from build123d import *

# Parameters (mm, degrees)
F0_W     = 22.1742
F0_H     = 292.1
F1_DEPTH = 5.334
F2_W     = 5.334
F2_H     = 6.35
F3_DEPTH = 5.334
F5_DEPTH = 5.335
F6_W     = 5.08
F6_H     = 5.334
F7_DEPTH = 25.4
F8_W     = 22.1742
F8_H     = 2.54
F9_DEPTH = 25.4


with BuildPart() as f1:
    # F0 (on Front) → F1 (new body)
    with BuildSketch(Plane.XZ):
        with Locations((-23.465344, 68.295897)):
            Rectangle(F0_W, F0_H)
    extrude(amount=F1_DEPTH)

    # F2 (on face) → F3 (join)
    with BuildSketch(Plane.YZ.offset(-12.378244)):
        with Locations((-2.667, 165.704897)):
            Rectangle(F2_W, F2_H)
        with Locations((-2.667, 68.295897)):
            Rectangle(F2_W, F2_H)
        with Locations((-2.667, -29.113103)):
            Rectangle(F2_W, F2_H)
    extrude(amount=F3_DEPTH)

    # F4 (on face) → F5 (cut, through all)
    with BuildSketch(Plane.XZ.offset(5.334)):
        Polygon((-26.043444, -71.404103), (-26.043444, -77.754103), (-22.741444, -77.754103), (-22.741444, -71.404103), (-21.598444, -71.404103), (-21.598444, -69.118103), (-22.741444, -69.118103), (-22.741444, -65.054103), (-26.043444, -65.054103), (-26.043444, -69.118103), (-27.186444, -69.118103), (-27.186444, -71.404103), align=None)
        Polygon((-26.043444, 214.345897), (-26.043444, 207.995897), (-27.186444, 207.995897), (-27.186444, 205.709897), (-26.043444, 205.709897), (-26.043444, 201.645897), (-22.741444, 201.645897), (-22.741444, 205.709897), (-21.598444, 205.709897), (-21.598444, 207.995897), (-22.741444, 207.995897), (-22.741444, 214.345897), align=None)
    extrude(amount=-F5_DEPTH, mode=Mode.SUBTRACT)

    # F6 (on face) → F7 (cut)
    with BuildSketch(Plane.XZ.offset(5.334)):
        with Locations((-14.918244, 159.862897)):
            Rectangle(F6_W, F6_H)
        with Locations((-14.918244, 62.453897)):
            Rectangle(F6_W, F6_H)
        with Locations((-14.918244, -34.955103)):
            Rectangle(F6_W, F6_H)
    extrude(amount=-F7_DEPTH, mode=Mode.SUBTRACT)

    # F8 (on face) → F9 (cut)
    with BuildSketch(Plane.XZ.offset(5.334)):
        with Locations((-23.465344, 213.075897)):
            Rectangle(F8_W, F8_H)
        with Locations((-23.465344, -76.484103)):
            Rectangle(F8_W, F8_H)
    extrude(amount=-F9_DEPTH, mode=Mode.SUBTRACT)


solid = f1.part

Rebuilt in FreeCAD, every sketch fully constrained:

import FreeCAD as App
import Part
import Sketcher
from FreeCAD import Vector
Q = App.Units.Quantity

doc = App.newDocument("Part")
body = doc.addObject("PartDesign::Body", "Body")

sketch1 = body.newObject("Sketcher::SketchObject", "Sketch")
sketch1.AttachmentSupport = (doc.getObject("XZ_Plane"), [""])
sketch1.MapMode = "FlatFace"
sketch1.addGeometry([
    Part.LineSegment(Vector(-34.552444, 214.345897, 0), Vector(-34.552444, -77.754103, 0)),
    Part.LineSegment(Vector(-34.552444, -77.754103, 0), Vector(-12.378244, -77.754103, 0)),
    Part.LineSegment(Vector(-12.378244, -77.754103, 0), Vector(-12.378244, 214.345897, 0)),
    Part.LineSegment(Vector(-12.378244, 214.345897, 0), Vector(-34.552444, 214.345897, 0)),
], False)
sketch1.addConstraint([
    Sketcher.Constraint("Coincident", 0, 2, 1, 1),
    Sketcher.Constraint("Coincident", 1, 2, 2, 1),
    Sketcher.Constraint("Coincident", 2, 2, 3, 1),
    Sketcher.Constraint("Coincident", 3, 2, 0, 1),
    Sketcher.Constraint("Vertical", 0),
    Sketcher.Constraint("Horizontal", 1),
    Sketcher.Constraint("Vertical", 2),
    Sketcher.Constraint("Horizontal", 3),
    Sketcher.Constraint("DistanceY", 0, 2, 0, 1, Q("11.5 in")),
    Sketcher.Constraint("DistanceX", 1, 1, 1, 2, Q("0.873 in")),
    Sketcher.Constraint("DistanceX", 0, 2, -1, 1, Q("34.552444 mm")),
    Sketcher.Constraint("DistanceY", 0, 2, -1, 1, Q("77.754103 mm")),
])
pad1 = body.newObject("PartDesign::Pad", "Pad")
pad1.Profile = sketch1
pad1.Length = Q("0.21 in")

sketch2 = body.newObject("Sketcher::SketchObject", "Sketch001")
sketch2.AttachmentSupport = (doc.getObject("YZ_Plane"), [""])
sketch2.MapMode = "FlatFace"
sketch2.AttachmentOffset = App.Placement(Vector(0, 0, -12.378244), App.Rotation())
sketch2.addGeometry([
    Part.LineSegment(Vector(-5.334, 168.879897, 0), Vector(-5.334, 162.529897, 0)),
    Part.LineSegment(Vector(-5.334, 162.529897, 0), Vector(0, 162.529897, 0)),
    Part.LineSegment(Vector(0, 162.529897, 0), Vector(0, 168.879897, 0)),
    Part.LineSegment(Vector(0, 168.879897, 0), Vector(-5.334, 168.879897, 0)),
    Part.LineSegment(Vector(-5.334, 71.470897, 0), Vector(-5.334, 65.120897, 0)),
    Part.LineSegment(Vector(-5.334, 65.120897, 0), Vector(0, 65.120897, 0)),
    Part.LineSegment(Vector(0, 65.120897, 0), Vector(0, 71.470897, 0)),
    Part.LineSegment(Vector(0, 71.470897, 0), Vector(-5.334, 71.470897, 0)),
    Part.LineSegment(Vector(-5.334, -25.938103, 0), Vector(-5.334, -32.288103, 0)),
    Part.LineSegment(Vector(-5.334, -32.288103, 0), Vector(0, -32.288103, 0)),
    Part.LineSegment(Vector(0, -32.288103, 0), Vector(0, -25.938103, 0)),
    Part.LineSegment(Vector(0, -25.938103, 0), Vector(-5.334, -25.938103, 0)),
], False)
sketch2.addConstraint([
    Sketcher.Constraint("Coincident", 0, 2, 1, 1),
    Sketcher.Constraint("Coincident", 1, 2, 2, 1),
    Sketcher.Constraint("Coincident", 2, 2, 3, 1),
    Sketcher.Constraint("Coincident", 3, 2, 0, 1),
    Sketcher.Constraint("Coincident", 4, 2, 5, 1),
    Sketcher.Constraint("Coincident", 5, 2, 6, 1),
    Sketcher.Constraint("Coincident", 6, 2, 7, 1),
    Sketcher.Constraint("Coincident", 7, 2, 4, 1),
    Sketcher.Constraint("Coincident", 8, 2, 9, 1),
    Sketcher.Constraint("Coincident", 9, 2, 10, 1),
    Sketcher.Constraint("Coincident", 10, 2, 11, 1),
    Sketcher.Constraint("Coincident", 11, 2, 8, 1),
    Sketcher.Constraint("Vertical", 0),
    Sketcher.Constraint("Horizontal", 1),
    Sketcher.Constraint("Vertical", 2),
    Sketcher.Constraint("Horizontal", 3),
    Sketcher.Constraint("Vertical", 4),
    Sketcher.Constraint("Horizontal", 5),
    Sketcher.Constraint("Vertical", 6),
    Sketcher.Constraint("Horizontal", 7),
    Sketcher.Constraint("Vertical", 8),
    Sketcher.Constraint("Horizontal", 9),
    Sketcher.Constraint("Vertical", 10),
    Sketcher.Constraint("Horizontal", 11),
    Sketcher.Constraint("PointOnObject", 1, 2, -2),
    Sketcher.Constraint("PointOnObject", 5, 2, -2),
    Sketcher.Constraint("PointOnObject", 9, 2, -2),
    Sketcher.Constraint("Vertical", 3, 2, 4, 2),
    Sketcher.Constraint("Vertical", 7, 2, 8, 2),
    Sketcher.Constraint("Equal", 2, 4),
    Sketcher.Constraint("Equal", 6, 8),
    Sketcher.Constraint("DistanceX", 1, 1, 1, 2, Q("0.21 in")),
    Sketcher.Constraint("DistanceY", 0, 2, 0, 1, Q("0.25 in")),
    Sketcher.Constraint("DistanceY", 8, 2, 0, 2, Q("7.67 in")),
    Sketcher.Constraint("DistanceY", 4, 2, 0, 2, Q("3.835 in")),
    Sketcher.Constraint("DistanceY", -1, 1, 0, 2, Q("162.529897 mm")),
])
pad2 = body.newObject("PartDesign::Pad", "Pad001")
pad2.Profile = sketch2
pad2.Length = Q("0.21 in")

sketch3 = body.newObject("Sketcher::SketchObject", "Sketch002")
sketch3.AttachmentSupport = (doc.getObject("XZ_Plane"), [""])
sketch3.MapMode = "FlatFace"
sketch3.AttachmentOffset = App.Placement(Vector(0, 0, 0.21 * 25.4), App.Rotation())
sketch3.addGeometry([
    Part.LineSegment(Vector(-26.043444, -71.404103, 0), Vector(-26.043444, -77.754103, 0)),
    Part.LineSegment(Vector(-26.043444, -77.754103, 0), Vector(-22.741444, -77.754103, 0)),
    Part.LineSegment(Vector(-22.741444, -77.754103, 0), Vector(-22.741444, -71.404103, 0)),
    Part.LineSegment(Vector(-22.741444, -71.404103, 0), Vector(-21.598444, -71.404103, 0)),
    Part.LineSegment(Vector(-21.598444, -71.404103, 0), Vector(-21.598444, -69.118103, 0)),
    Part.LineSegment(Vector(-21.598444, -69.118103, 0), Vector(-22.741444, -69.118103, 0)),
    Part.LineSegment(Vector(-22.741444, -69.118103, 0), Vector(-22.741444, -65.054103, 0)),
    Part.LineSegment(Vector(-22.741444, -65.054103, 0), Vector(-26.043444, -65.054103, 0)),
    Part.LineSegment(Vector(-26.043444, -65.054103, 0), Vector(-26.043444, -69.118103, 0)),
    Part.LineSegment(Vector(-26.043444, -69.118103, 0), Vector(-27.186444, -69.118103, 0)),
    Part.LineSegment(Vector(-27.186444, -69.118103, 0), Vector(-27.186444, -71.404103, 0)),
    Part.LineSegment(Vector(-27.186444, -71.404103, 0), Vector(-26.043444, -71.404103, 0)),
    Part.LineSegment(Vector(-26.043444, 214.345897, 0), Vector(-26.043444, 207.995897, 0)),
    Part.LineSegment(Vector(-26.043444, 207.995897, 0), Vector(-27.186444, 207.995897, 0)),
    Part.LineSegment(Vector(-27.186444, 207.995897, 0), Vector(-27.186444, 205.709897, 0)),
    Part.LineSegment(Vector(-27.186444, 205.709897, 0), Vector(-26.043444, 205.709897, 0)),
    Part.LineSegment(Vector(-26.043444, 205.709897, 0), Vector(-26.043444, 201.645897, 0)),
    Part.LineSegment(Vector(-26.043444, 201.645897, 0), Vector(-22.741444, 201.645897, 0)),
    Part.LineSegment(Vector(-22.741444, 201.645897, 0), Vector(-22.741444, 205.709897, 0)),
    Part.LineSegment(Vector(-22.741444, 205.709897, 0), Vector(-21.598444, 205.709897, 0)),
    Part.LineSegment(Vector(-21.598444, 205.709897, 0), Vector(-21.598444, 207.995897, 0)),
    Part.LineSegment(Vector(-21.598444, 207.995897, 0), Vector(-22.741444, 207.995897, 0)),
    Part.LineSegment(Vector(-22.741444, 207.995897, 0), Vector(-22.741444, 214.345897, 0)),
    Part.LineSegment(Vector(-22.741444, 214.345897, 0), Vector(-26.043444, 214.345897, 0)),
], False)
sketch3.addConstraint([
    Sketcher.Constraint("Coincident", 0, 2, 1, 1),
    Sketcher.Constraint("Coincident", 1, 2, 2, 1),
    Sketcher.Constraint("Coincident", 2, 2, 3, 1),
    Sketcher.Constraint("Coincident", 3, 2, 4, 1),
    Sketcher.Constraint("Coincident", 4, 2, 5, 1),
    Sketcher.Constraint("Coincident", 5, 2, 6, 1),
    Sketcher.Constraint("Coincident", 6, 2, 7, 1),
    Sketcher.Constraint("Coincident", 7, 2, 8, 1),
    Sketcher.Constraint("Coincident", 8, 2, 9, 1),
    Sketcher.Constraint("Coincident", 9, 2, 10, 1),
    Sketcher.Constraint("Coincident", 10, 2, 11, 1),
    Sketcher.Constraint("Coincident", 11, 2, 0, 1),
    Sketcher.Constraint("Coincident", 12, 2, 13, 1),
    Sketcher.Constraint("Coincident", 13, 2, 14, 1),
    Sketcher.Constraint("Coincident", 14, 2, 15, 1),
    Sketcher.Constraint("Coincident", 15, 2, 16, 1),
    Sketcher.Constraint("Coincident", 16, 2, 17, 1),
    Sketcher.Constraint("Coincident", 17, 2, 18, 1),
    Sketcher.Constraint("Coincident", 18, 2, 19, 1),
    Sketcher.Constraint("Coincident", 19, 2, 20, 1),
    Sketcher.Constraint("Coincident", 20, 2, 21, 1),
    Sketcher.Constraint("Coincident", 21, 2, 22, 1),
    Sketcher.Constraint("Coincident", 22, 2, 23, 1),
    Sketcher.Constraint("Coincident", 23, 2, 12, 1),
    Sketcher.Constraint("Vertical", 0),
    Sketcher.Constraint("Horizontal", 1),
    Sketcher.Constraint("Vertical", 2),
    Sketcher.Constraint("Horizontal", 3),
    Sketcher.Constraint("Vertical", 4),
    Sketcher.Constraint("Horizontal", 5),
    Sketcher.Constraint("Vertical", 6),
    Sketcher.Constraint("Horizontal", 7),
    Sketcher.Constraint("Vertical", 8),
    Sketcher.Constraint("Horizontal", 9),
    Sketcher.Constraint("Vertical", 10),
    Sketcher.Constraint("Horizontal", 11),
    Sketcher.Constraint("Vertical", 12),
    Sketcher.Constraint("Horizontal", 13),
    Sketcher.Constraint("Vertical", 14),
    Sketcher.Constraint("Horizontal", 15),
    Sketcher.Constraint("Vertical", 16),
    Sketcher.Constraint("Horizontal", 17),
    Sketcher.Constraint("Vertical", 18),
    Sketcher.Constraint("Horizontal", 19),
    Sketcher.Constraint("Vertical", 20),
    Sketcher.Constraint("Horizontal", 21),
    Sketcher.Constraint("Vertical", 22),
    Sketcher.Constraint("Horizontal", 23),
    Sketcher.Constraint("Horizontal", 5, 2, 8, 2),
    Sketcher.Constraint("Horizontal", 3, 2, 10, 2),
    Sketcher.Constraint("Horizontal", 15, 2, 18, 2),
    Sketcher.Constraint("Horizontal", 13, 2, 20, 2),
    Sketcher.Constraint("Vertical", 2, 2, 5, 2),
    Sketcher.Constraint("Vertical", 0, 2, 7, 2),
    Sketcher.Constraint("Vertical", 11, 2, 12, 2),
    Sketcher.Constraint("Vertical", 10, 2, 13, 2),
    Sketcher.Constraint("Vertical", 12, 2, 15, 2),
    Sketcher.Constraint("Vertical", 6, 2, 17, 2),
    Sketcher.Constraint("Vertical", 4, 2, 19, 2),
    Sketcher.Constraint("Vertical", 18, 2, 21, 2),
    Sketcher.Constraint("Equal", 5, 9),
    Sketcher.Constraint("Equal", 2, 12),
    Sketcher.Constraint("Equal", 10, 14),
    Sketcher.Constraint("Equal", 8, 16),
    Sketcher.Constraint("DistanceX", 1, 1, 1, 2, Q("0.13 in")),
    Sketcher.Constraint("DistanceY", 0, 2, 0, 1, Q("0.25 in")),
    Sketcher.Constraint("DistanceY", 4, 1, 4, 2, Q("0.09 in")),
    Sketcher.Constraint("DistanceY", 6, 1, 6, 2, Q("0.16 in")),
    Sketcher.Constraint("DistanceY", 7, 2, 16, 2, Q("10.5 in")),
    Sketcher.Constraint("DistanceX", 3, 1, 3, 2, Q("0.045 in")),
    Sketcher.Constraint("DistanceX", 0, 2, -1, 1, Q("26.043444 mm")),
    Sketcher.Constraint("DistanceY", 0, 2, -1, 1, Q("77.754103 mm")),
])
pocket1 = body.newObject("PartDesign::Pocket", "Pocket")
pocket1.Profile = sketch3
pocket1.Type = "ThroughAll"

sketch4 = body.newObject("Sketcher::SketchObject", "Sketch003")
sketch4.AttachmentSupport = (doc.getObject("XZ_Plane"), [""])
sketch4.MapMode = "FlatFace"
sketch4.AttachmentOffset = App.Placement(Vector(0, 0, 0.21 * 25.4), App.Rotation())
sketch4.addGeometry([
    Part.LineSegment(Vector(-17.458244, 162.529897, 0), Vector(-17.458244, 157.195897, 0)),
    Part.LineSegment(Vector(-17.458244, 157.195897, 0), Vector(-12.378244, 157.195897, 0)),
    Part.LineSegment(Vector(-12.378244, 157.195897, 0), Vector(-12.378244, 162.529897, 0)),
    Part.LineSegment(Vector(-12.378244, 162.529897, 0), Vector(-17.458244, 162.529897, 0)),
    Part.LineSegment(Vector(-17.458244, 65.120897, 0), Vector(-17.458244, 59.786897, 0)),
    Part.LineSegment(Vector(-17.458244, 59.786897, 0), Vector(-12.378244, 59.786897, 0)),
    Part.LineSegment(Vector(-12.378244, 59.786897, 0), Vector(-12.378244, 65.120897, 0)),
    Part.LineSegment(Vector(-12.378244, 65.120897, 0), Vector(-17.458244, 65.120897, 0)),
    Part.LineSegment(Vector(-17.458244, -32.288103, 0), Vector(-17.458244, -37.622103, 0)),
    Part.LineSegment(Vector(-17.458244, -37.622103, 0), Vector(-12.378244, -37.622103, 0)),
    Part.LineSegment(Vector(-12.378244, -37.622103, 0), Vector(-12.378244, -32.288103, 0)),
    Part.LineSegment(Vector(-12.378244, -32.288103, 0), Vector(-17.458244, -32.288103, 0)),
], False)
sketch4.addConstraint([
    Sketcher.Constraint("Coincident", 0, 2, 1, 1),
    Sketcher.Constraint("Coincident", 1, 2, 2, 1),
    Sketcher.Constraint("Coincident", 2, 2, 3, 1),
    Sketcher.Constraint("Coincident", 3, 2, 0, 1),
    Sketcher.Constraint("Coincident", 4, 2, 5, 1),
    Sketcher.Constraint("Coincident", 5, 2, 6, 1),
    Sketcher.Constraint("Coincident", 6, 2, 7, 1),
    Sketcher.Constraint("Coincident", 7, 2, 4, 1),
    Sketcher.Constraint("Coincident", 8, 2, 9, 1),
    Sketcher.Constraint("Coincident", 9, 2, 10, 1),
    Sketcher.Constraint("Coincident", 10, 2, 11, 1),
    Sketcher.Constraint("Coincident", 11, 2, 8, 1),
    Sketcher.Constraint("Vertical", 0),
    Sketcher.Constraint("Horizontal", 1),
    Sketcher.Constraint("Vertical", 2),
    Sketcher.Constraint("Horizontal", 3),
    Sketcher.Constraint("Vertical", 4),
    Sketcher.Constraint("Horizontal", 5),
    Sketcher.Constraint("Vertical", 6),
    Sketcher.Constraint("Horizontal", 7),
    Sketcher.Constraint("Vertical", 8),
    Sketcher.Constraint("Horizontal", 9),
    Sketcher.Constraint("Vertical", 10),
    Sketcher.Constraint("Horizontal", 11),
    Sketcher.Constraint("Vertical", 3, 2, 4, 2),
    Sketcher.Constraint("Vertical", 2, 2, 5, 2),
    Sketcher.Constraint("Vertical", 7, 2, 8, 2),
    Sketcher.Constraint("Vertical", 6, 2, 9, 2),
    Sketcher.Constraint("Equal", 2, 4),
    Sketcher.Constraint("Equal", 6, 8),
    Sketcher.Constraint("DistanceX", 1, 1, 1, 2, Q("0.2 in")),
    Sketcher.Constraint("DistanceY", 0, 2, 0, 1, Q("0.21 in")),
    Sketcher.Constraint("DistanceY", 8, 2, 0, 2, Q("7.67 in")),
    Sketcher.Constraint("DistanceY", 4, 2, 0, 2, Q("3.835 in")),
    Sketcher.Constraint("DistanceX", 0, 2, -1, 1, Q("17.458244 mm")),
    Sketcher.Constraint("DistanceY", -1, 1, 0, 2, Q("157.195897 mm")),
])
pocket2 = body.newObject("PartDesign::Pocket", "Pocket001")
pocket2.Profile = sketch4
pocket2.Length = Q("1 in")

sketch5 = body.newObject("Sketcher::SketchObject", "Sketch004")
sketch5.AttachmentSupport = (doc.getObject("XZ_Plane"), [""])
sketch5.MapMode = "FlatFace"
sketch5.AttachmentOffset = App.Placement(Vector(0, 0, 0.21 * 25.4), App.Rotation())
sketch5.addGeometry([
    Part.LineSegment(Vector(-34.552444, 214.345897, 0), Vector(-34.552444, 211.805897, 0)),
    Part.LineSegment(Vector(-34.552444, 211.805897, 0), Vector(-12.378244, 211.805897, 0)),
    Part.LineSegment(Vector(-12.378244, 211.805897, 0), Vector(-12.378244, 214.345897, 0)),
    Part.LineSegment(Vector(-12.378244, 214.345897, 0), Vector(-34.552444, 214.345897, 0)),
    Part.LineSegment(Vector(-34.552444, -75.214103, 0), Vector(-34.552444, -77.754103, 0)),
    Part.LineSegment(Vector(-34.552444, -77.754103, 0), Vector(-12.378244, -77.754103, 0)),
    Part.LineSegment(Vector(-12.378244, -77.754103, 0), Vector(-12.378244, -75.214103, 0)),
    Part.LineSegment(Vector(-12.378244, -75.214103, 0), Vector(-34.552444, -75.214103, 0)),
], False)
sketch5.addConstraint([
    Sketcher.Constraint("Coincident", 0, 2, 1, 1),
    Sketcher.Constraint("Coincident", 1, 2, 2, 1),
    Sketcher.Constraint("Coincident", 2, 2, 3, 1),
    Sketcher.Constraint("Coincident", 3, 2, 0, 1),
    Sketcher.Constraint("Coincident", 4, 2, 5, 1),
    Sketcher.Constraint("Coincident", 5, 2, 6, 1),
    Sketcher.Constraint("Coincident", 6, 2, 7, 1),
    Sketcher.Constraint("Coincident", 7, 2, 4, 1),
    Sketcher.Constraint("Vertical", 0),
    Sketcher.Constraint("Horizontal", 1),
    Sketcher.Constraint("Vertical", 2),
    Sketcher.Constraint("Horizontal", 3),
    Sketcher.Constraint("Vertical", 4),
    Sketcher.Constraint("Horizontal", 5),
    Sketcher.Constraint("Vertical", 6),
    Sketcher.Constraint("Horizontal", 7),
    Sketcher.Constraint("Vertical", 3, 2, 4, 2),
    Sketcher.Constraint("Vertical", 2, 2, 5, 2),
    Sketcher.Constraint("Equal", 2, 4),
    Sketcher.Constraint("DistanceY", 0, 2, 0, 1, Q("0.1 in")),
    Sketcher.Constraint("DistanceY", 4, 2, 0, 2, Q("11.4 in")),
    Sketcher.Constraint("DistanceX", 1, 1, 1, 2, Q("0.873 in")),
    Sketcher.Constraint("DistanceX", 0, 2, -1, 1, Q("34.552444 mm")),
    Sketcher.Constraint("DistanceY", -1, 1, 0, 2, Q("211.805897 mm")),
])
pocket3 = body.newObject("PartDesign::Pocket", "Pocket002")
pocket3.Profile = sketch5
pocket3.Length = Q("1 in")

doc.recompute()
